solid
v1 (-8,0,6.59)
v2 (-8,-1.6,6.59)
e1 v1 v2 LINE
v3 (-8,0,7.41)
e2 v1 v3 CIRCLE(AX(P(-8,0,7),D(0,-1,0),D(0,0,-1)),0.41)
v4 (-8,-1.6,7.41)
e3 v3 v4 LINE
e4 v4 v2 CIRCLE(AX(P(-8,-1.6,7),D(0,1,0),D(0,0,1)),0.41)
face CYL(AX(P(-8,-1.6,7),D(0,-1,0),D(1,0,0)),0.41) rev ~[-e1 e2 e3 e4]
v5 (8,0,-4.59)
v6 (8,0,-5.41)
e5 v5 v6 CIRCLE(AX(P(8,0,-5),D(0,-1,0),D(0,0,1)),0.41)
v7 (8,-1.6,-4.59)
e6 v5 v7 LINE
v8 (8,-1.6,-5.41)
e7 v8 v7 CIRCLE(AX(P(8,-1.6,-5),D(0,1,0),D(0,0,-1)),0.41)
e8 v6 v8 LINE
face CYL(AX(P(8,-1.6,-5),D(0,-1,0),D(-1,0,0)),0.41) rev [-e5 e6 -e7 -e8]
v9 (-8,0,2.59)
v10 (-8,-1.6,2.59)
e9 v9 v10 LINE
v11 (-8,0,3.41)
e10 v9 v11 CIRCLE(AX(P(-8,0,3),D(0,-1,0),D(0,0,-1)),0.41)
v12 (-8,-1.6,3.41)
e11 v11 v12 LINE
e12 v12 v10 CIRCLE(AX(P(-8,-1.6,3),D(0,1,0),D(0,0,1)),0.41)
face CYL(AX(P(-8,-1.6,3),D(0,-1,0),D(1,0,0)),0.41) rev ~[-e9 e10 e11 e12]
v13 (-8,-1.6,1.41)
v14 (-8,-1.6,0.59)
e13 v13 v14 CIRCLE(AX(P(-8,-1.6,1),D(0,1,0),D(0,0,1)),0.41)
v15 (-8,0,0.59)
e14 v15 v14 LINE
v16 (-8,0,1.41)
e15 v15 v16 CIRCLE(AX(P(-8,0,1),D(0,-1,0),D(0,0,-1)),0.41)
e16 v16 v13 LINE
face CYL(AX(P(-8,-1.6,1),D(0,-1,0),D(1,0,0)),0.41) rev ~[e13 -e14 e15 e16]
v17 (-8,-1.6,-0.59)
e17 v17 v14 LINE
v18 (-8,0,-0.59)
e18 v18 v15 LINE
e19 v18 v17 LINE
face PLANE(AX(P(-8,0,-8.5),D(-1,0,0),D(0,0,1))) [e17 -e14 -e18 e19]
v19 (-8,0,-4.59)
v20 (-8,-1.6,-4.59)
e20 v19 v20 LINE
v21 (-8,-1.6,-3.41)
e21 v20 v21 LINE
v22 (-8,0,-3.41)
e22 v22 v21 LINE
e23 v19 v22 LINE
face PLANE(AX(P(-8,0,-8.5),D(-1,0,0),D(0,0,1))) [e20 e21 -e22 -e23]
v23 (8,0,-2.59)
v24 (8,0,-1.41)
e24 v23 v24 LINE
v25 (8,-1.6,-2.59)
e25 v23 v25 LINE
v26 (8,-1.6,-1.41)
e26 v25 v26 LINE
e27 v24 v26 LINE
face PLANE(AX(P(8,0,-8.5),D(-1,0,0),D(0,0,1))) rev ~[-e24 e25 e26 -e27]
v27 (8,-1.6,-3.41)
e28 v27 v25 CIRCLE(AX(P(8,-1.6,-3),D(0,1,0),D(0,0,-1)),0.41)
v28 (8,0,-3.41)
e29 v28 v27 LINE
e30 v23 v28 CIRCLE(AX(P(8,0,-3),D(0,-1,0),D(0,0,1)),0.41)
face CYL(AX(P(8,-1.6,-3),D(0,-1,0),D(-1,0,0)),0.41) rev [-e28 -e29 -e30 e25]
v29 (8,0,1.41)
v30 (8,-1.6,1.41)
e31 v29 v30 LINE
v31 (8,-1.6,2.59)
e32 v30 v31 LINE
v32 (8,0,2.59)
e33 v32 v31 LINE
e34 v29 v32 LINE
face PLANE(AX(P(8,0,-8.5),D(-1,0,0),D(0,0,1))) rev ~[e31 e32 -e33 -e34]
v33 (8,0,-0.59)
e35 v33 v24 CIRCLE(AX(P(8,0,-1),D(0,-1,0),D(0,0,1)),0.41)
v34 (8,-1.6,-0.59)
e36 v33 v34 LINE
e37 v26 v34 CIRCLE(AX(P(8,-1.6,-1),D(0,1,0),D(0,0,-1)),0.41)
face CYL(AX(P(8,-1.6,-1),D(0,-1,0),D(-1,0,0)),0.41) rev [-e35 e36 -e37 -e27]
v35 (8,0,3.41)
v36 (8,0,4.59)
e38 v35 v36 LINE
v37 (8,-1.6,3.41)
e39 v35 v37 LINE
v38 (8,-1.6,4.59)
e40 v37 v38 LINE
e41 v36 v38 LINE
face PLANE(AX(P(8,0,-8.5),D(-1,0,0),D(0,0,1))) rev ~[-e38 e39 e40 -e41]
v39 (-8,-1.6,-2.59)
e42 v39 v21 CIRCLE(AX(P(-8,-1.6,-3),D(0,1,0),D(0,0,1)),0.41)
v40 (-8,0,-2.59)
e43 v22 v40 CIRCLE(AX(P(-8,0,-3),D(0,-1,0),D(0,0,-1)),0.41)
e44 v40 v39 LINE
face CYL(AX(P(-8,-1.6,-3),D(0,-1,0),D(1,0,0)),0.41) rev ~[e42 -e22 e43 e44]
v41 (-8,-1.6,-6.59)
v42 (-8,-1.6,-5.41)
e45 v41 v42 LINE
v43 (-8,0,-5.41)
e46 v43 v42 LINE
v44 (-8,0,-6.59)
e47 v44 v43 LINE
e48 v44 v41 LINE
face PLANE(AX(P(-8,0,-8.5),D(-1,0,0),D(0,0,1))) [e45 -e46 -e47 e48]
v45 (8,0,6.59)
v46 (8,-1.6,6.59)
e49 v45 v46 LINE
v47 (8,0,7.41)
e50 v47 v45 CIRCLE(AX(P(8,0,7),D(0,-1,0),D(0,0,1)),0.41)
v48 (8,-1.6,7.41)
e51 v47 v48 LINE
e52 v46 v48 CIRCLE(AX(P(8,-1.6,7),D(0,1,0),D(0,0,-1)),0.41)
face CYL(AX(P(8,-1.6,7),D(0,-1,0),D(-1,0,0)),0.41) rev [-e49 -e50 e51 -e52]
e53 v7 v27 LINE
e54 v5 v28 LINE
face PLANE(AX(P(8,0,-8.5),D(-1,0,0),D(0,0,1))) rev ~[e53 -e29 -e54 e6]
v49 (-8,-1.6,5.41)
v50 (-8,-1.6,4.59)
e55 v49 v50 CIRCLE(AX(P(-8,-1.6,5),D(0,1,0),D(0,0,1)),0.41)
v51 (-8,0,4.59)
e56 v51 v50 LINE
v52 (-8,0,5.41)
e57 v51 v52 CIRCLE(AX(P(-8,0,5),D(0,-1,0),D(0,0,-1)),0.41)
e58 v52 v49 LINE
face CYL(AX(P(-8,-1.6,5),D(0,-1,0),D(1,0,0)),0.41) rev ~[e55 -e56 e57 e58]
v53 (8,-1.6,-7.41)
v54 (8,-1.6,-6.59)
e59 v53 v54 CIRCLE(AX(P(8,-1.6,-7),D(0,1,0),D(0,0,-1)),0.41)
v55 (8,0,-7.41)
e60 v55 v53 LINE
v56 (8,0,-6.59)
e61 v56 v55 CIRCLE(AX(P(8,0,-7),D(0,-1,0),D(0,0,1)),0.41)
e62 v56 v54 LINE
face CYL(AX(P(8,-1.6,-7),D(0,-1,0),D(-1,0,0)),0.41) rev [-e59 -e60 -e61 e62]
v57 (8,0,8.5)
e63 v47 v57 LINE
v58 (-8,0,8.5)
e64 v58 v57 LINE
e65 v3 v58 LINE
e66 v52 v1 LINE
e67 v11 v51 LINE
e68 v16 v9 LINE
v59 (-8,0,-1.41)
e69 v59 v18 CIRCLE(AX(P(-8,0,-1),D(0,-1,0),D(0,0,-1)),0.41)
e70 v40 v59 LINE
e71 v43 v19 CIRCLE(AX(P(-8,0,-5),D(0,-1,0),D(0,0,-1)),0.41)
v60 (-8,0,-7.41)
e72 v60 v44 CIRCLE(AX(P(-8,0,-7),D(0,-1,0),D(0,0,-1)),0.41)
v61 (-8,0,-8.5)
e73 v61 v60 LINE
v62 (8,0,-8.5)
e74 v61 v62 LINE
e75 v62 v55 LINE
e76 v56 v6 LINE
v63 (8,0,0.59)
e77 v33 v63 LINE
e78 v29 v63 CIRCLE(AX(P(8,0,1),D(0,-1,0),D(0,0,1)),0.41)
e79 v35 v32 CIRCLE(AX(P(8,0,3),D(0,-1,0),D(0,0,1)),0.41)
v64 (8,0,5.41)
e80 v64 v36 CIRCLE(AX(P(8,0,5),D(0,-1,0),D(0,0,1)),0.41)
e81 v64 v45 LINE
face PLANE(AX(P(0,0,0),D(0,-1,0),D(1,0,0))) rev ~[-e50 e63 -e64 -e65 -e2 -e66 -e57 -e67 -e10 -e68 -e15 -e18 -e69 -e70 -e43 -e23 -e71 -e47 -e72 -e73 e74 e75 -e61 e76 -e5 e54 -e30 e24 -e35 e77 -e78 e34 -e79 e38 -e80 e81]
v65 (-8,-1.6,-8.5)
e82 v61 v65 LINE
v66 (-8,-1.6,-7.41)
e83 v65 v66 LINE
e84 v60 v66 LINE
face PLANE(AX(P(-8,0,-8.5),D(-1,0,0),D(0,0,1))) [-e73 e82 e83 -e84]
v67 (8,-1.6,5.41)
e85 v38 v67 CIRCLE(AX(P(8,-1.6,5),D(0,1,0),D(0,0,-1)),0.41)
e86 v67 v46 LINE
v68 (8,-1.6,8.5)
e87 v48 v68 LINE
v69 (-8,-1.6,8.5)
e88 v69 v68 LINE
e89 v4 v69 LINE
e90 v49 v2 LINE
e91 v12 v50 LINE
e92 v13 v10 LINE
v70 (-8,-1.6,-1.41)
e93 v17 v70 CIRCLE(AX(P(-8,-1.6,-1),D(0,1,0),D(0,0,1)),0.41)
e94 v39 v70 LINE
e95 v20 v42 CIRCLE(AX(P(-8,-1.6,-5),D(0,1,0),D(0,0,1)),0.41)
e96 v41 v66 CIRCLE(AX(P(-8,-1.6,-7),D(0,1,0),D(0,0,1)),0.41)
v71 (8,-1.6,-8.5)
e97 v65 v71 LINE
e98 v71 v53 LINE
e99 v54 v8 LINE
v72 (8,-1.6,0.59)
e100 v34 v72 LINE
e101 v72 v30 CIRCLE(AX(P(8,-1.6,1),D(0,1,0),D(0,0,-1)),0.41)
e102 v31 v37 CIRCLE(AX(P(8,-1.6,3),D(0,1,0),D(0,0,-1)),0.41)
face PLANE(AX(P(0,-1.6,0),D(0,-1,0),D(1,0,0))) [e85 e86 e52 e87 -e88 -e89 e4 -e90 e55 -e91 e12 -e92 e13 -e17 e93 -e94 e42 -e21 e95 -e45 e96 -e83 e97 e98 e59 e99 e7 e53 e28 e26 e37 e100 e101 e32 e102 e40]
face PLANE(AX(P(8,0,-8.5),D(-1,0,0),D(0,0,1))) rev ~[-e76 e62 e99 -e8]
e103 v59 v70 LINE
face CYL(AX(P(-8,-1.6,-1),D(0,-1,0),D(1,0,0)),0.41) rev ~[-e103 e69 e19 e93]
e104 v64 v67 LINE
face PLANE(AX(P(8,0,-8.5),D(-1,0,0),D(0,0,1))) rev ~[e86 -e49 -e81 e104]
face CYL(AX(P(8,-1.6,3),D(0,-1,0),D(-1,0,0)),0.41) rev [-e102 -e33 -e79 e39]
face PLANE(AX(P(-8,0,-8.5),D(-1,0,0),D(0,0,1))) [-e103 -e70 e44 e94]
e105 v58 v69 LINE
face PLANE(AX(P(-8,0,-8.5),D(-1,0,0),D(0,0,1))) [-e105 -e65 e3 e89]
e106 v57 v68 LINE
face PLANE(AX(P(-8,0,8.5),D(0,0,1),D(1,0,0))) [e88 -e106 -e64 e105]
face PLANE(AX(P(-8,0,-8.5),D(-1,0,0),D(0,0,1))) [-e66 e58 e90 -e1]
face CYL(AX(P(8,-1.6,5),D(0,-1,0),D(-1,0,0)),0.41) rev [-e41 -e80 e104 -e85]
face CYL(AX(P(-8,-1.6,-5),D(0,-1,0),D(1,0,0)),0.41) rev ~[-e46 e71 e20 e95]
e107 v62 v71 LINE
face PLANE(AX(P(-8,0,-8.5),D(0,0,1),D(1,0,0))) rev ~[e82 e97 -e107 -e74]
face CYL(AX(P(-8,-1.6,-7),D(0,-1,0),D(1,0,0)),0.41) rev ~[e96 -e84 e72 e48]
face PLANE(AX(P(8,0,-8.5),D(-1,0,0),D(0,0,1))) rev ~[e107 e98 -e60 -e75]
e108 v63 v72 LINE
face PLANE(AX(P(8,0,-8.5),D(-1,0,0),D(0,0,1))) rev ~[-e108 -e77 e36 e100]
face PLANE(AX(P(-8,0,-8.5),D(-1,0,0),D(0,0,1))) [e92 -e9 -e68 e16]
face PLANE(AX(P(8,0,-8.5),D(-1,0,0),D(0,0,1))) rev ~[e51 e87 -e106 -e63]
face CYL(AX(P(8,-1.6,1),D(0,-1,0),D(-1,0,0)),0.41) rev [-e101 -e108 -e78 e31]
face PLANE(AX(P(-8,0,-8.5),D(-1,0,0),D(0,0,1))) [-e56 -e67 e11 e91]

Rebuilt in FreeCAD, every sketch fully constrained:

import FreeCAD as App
import Part
import Sketcher

V = App.Vector
Q = App.Units.Quantity


def add_polygon(sketch, points):
    """Adds a closed chain of lines whose ends are joined by coincident constraints."""
    first, n = sketch.GeometryCount, len(points)
    for a, b in zip(points, points[1:] + points[:1]):
        sketch.addGeometry(Part.LineSegment(App.Vector(*a, 0), App.Vector(*b, 0)), False)
    for i in range(n):
        sketch.addConstraint(Sketcher.Constraint("Coincident", first + i, 2, first + (i + 1) % n, 1))

doc = App.newDocument("Part")
params = doc.addObject("Spreadsheet::Sheet", "Params")
for row, (alias, value) in enumerate([
    ("sketch1_width", "16 mm"),
    ("sketch1_height", "17 mm"),
    ("pad1_length", "1.6 mm"),
    ("sketch2_diameter", "0.82 mm"),
    ("sketch3_diameter", "0.82 mm"),
    ("sketch4_diameter", "0.82 mm"),
    ("sketch5_diameter", "0.82 mm"),
    ("sketch6_diameter", "0.82 mm"),
    ("sketch7_diameter", "0.82 mm"),
    ("sketch8_diameter", "0.82 mm"),
    ("sketch9_diameter", "0.82 mm"),
], start=1):
    params.set(f"A{row}", alias)
    params.set(f"B{row}", "=" + value)
    params.setAlias(f"B{row}", alias)

body = doc.addObject("PartDesign::Body", "Body")

# Sketch on XZ plane
sketch1 = doc.addObject("Sketcher::SketchObject", "Sketch")
body.addObject(sketch1)
sketch1.AttachmentSupport = (doc.XZ_Plane, [""])
sketch1.MapMode = "FlatFace"
add_polygon(sketch1, [(-8, 8), (-8, -8), (8, -8), (8, 8)])  # lines 0-3
sketch1.addConstraint([
    Sketcher.Constraint("Vertical", 0),
    Sketcher.Constraint("Horizontal", 1),
    Sketcher.Constraint("Vertical", 2),
    Sketcher.Constraint("Horizontal", 3),
    Sketcher.Constraint("Symmetric", 0, 2, 2, 2, -1, 1),
    Sketcher.Constraint("DistanceX", 1, 1, 1, 2, Q("16 mm")),
    Sketcher.Constraint("DistanceY", 0, 2, 0, 1, Q("17 mm")),
])
sketch1.setExpression("Constraints[9]", "Params.sketch1_width")
sketch1.setExpression("Constraints[10]", "Params.sketch1_height")
pad1 = doc.addObject("PartDesign::Pad", "Pad")
body.addObject(pad1)
pad1.Profile = sketch1
pad1.setExpression("Length", "Params.pad1_length")

# Sketch on XZ plane
sketch2 = doc.addObject("Sketcher::SketchObject", "Sketch001")
body.addObject(sketch2)
sketch2.AttachmentSupport = (doc.XZ_Plane, [""])
sketch2.MapMode = "FlatFace"
sketch2.AttachmentOffset = App.Placement(V(0, 0, 1.6), App.Rotation())
sketch2.addGeometry(Part.Circle(V(-8, 7, 0), V(0, 0, 1), 0.41), False)
sketch2.addConstraint([
    Sketcher.Constraint("Diameter", 0, Q("0.82 mm")),
    Sketcher.Constraint("DistanceX", 0, 3, -1, 1, Q("8 mm")),
    Sketcher.Constraint("DistanceY", -1, 1, 0, 3, Q("7 mm")),
])
sketch2.setExpression("Constraints[0]", "Params.sketch2_diameter")
pocket1 = doc.addObject("PartDesign::Pocket", "Pocket")
body.addObject(pocket1)
pocket1.Profile = sketch2
pocket1.Type = "ThroughAll"
pocket1.Midplane = True

# Sketch on XZ plane
sketch3 = doc.addObject("Sketcher::SketchObject", "Sketch002")
body.addObject(sketch3)
sketch3.AttachmentSupport = (doc.XZ_Plane, [""])
sketch3.MapMode = "FlatFace"
sketch3.AttachmentOffset = App.Placement(V(0, 0, 1.6), App.Rotation())
sketch3.addGeometry(Part.Circle(V(-8, 5, 0), V(0, 0, 1), 0.41), False)
sketch3.addConstraint([
    Sketcher.Constraint("Diameter", 0, Q("0.82 mm")),
    Sketcher.Constraint("DistanceX", 0, 3, -1, 1, Q("8 mm")),
    Sketcher.Constraint("DistanceY", -1, 1, 0, 3, Q("5 mm")),
])
sketch3.setExpression("Constraints[0]", "Params.sketch3_diameter")
pocket2 = doc.addObject("PartDesign::Pocket", "Pocket001")
body.addObject(pocket2)
pocket2.Profile = sketch3
pocket2.Type = "ThroughAll"
pocket2.Midplane = True

# Sketch on XZ plane
sketch4 = doc.addObject("Sketcher::SketchObject", "Sketch003")
body.addObject(sketch4)
sketch4.AttachmentSupport = (doc.XZ_Plane, [""])
sketch4.MapMode = "FlatFace"
sketch4.AttachmentOffset = App.Placement(V(0, 0, 1.6), App.Rotation())
sketch4.addGeometry(Part.Circle(V(-8, 3, 0), V(0, 0, 1), 0.41), False)
sketch4.addConstraint([
    Sketcher.Constraint("Diameter", 0, Q("0.82 mm")),
    Sketcher.Constraint("DistanceX", 0, 3, -1, 1, Q("8 mm")),
    Sketcher.Constraint("DistanceY", -1, 1, 0, 3, Q("3 mm")),
])
sketch4.setExpression("Constraints[0]", "Params.sketch4_diameter")
pocket3 = doc.addObject("PartDesign::Pocket", "Pocket002")
body.addObject(pocket3)
pocket3.Profile = sketch4
pocket3.Type = "ThroughAll"
pocket3.Midplane = True

# Sketch on XZ plane
sketch5 = doc.addObject("Sketcher::SketchObject", "Sketch004")
body.addObject(sketch5)
sketch5.AttachmentSupport = (doc.XZ_Plane, [""])
sketch5.MapMode = "FlatFace"
sketch5.AttachmentOffset = App.Placement(V(0, 0, 1.6), App.Rotation())
sketch5.addGeometry(Part.Circle(V(-8, 1, 0), V(0, 0, 1), 0.41), False)
sketch5.addConstraint([
    Sketcher.Constraint("Diameter", 0, Q("0.82 mm")),
    Sketcher.Constraint("DistanceX", 0, 3, -1, 1, Q("8 mm")),
    Sketcher.Constraint("DistanceY", -1, 1, 0, 3, Q("1 mm")),
])
sketch5.setExpression("Constraints[0]", "Params.sketch5_diameter")
pocket4 = doc.addObject("PartDesign::Pocket", "Pocket003")
body.addObject(pocket4)
pocket4.Profile = sketch5
pocket4.Type = "ThroughAll"
pocket4.Midplane = True

# Sketch on XZ plane
sketch6 = doc.addObject("Sketcher::SketchObject", "Sketch005")
body.addObject(sketch6)
sketch6.AttachmentSupport = (doc.XZ_Plane, [""])
sketch6.MapMode = "FlatFace"
sketch6.AttachmentOffset = App.Placement(V(0, 0, 1.6), App.Rotation())
sketch6.addGeometry(Part.Circle(V(-8, -1, 0), V(0, 0, 1), 0.41), False)
sketch6.addConstraint([
    Sketcher.Constraint("Diameter", 0, Q("0.82 mm")),
    Sketcher.Constraint("DistanceX", 0, 3, -1, 1, Q("8 mm")),
    Sketcher.Constraint("DistanceY", 0, 3, -1, 1, Q("1 mm")),
])
sketch6.setExpression("Constraints[0]", "Params.sketch6_diameter")
pocket5 = doc.addObject("PartDesign::Pocket", "Pocket004")
body.addObject(pocket5)
pocket5.Profile = sketch6
pocket5.Type = "ThroughAll"
pocket5.Midplane = True

# Sketch on XZ plane
sketch7 = doc.addObject("Sketcher::SketchObject", "Sketch006")
body.addObject(sketch7)
sketch7.AttachmentSupport = (doc.XZ_Plane, [""])
sketch7.MapMode = "FlatFace"
sketch7.AttachmentOffset = App.Placement(V(0, 0, 1.6), App.Rotation())
sketch7.addGeometry(Part.Circle(V(-8, -3, 0), V(0, 0, 1), 0.41), False)
sketch7.addConstraint([
    Sketcher.Constraint("Diameter", 0, Q("0.82 mm")),
    Sketcher.Constraint("DistanceX", 0, 3, -1, 1, Q("8 mm")),
    Sketcher.Constraint("DistanceY", 0, 3, -1, 1, Q("3 mm")),
])
sketch7.setExpression("Constraints[0]", "Params.sketch7_diameter")
pocket6 = doc.addObject("PartDesign::Pocket", "Pocket005")
body.addObject(pocket6)
pocket6.Profile = sketch7
pocket6.Type = "ThroughAll"
pocket6.Midplane = True

# Sketch on XZ plane
sketch8 = doc.addObject("Sketcher::SketchObject", "Sketch007")
body.addObject(sketch8)
sketch8.AttachmentSupport = (doc.XZ_Plane, [""])
sketch8.MapMode = "FlatFace"
sketch8.AttachmentOffset = App.Placement(V(0, 0, 1.6), App.Rotation())
sketch8.addGeometry(Part.Circle(V(-8, -5, 0), V(0, 0, 1), 0.41), False)
sketch8.addConstraint([
    Sketcher.Constraint("Diameter", 0, Q("0.82 mm")),
    Sketcher.Constraint("DistanceX", 0, 3, -1, 1, Q("8 mm")),
    Sketcher.Constraint("DistanceY", 0, 3, -1, 1, Q("5 mm")),
])
sketch8.setExpression("Constraints[0]", "Params.sketch8_diameter")
pocket7 = doc.addObject("PartDesign::Pocket", "Pocket006")
body.addObject(pocket7)
pocket7.Profile = sketch8
pocket7.Type = "ThroughAll"
pocket7.Midplane = True

# Sketch on XZ plane
sketch9 = doc.addObject("Sketcher::SketchObject", "Sketch008")
body.addObject(sketch9)
sketch9.AttachmentSupport = (doc.XZ_Plane, [""])
sketch9.MapMode = "FlatFace"
sketch9.AttachmentOffset = App.Placement(V(0, 0, 1.6), App.Rotation())
sketch9.addGeometry(Part.Circle(V(-8, -7, 0), V(0, 0, 1), 0.41), False)
sketch9.addConstraint([
    Sketcher.Constraint("Diameter", 0, Q("0.82 mm")),
    Sketcher.Constraint("DistanceX", 0, 3, -1, 1, Q("8 mm")),
    Sketcher.Constraint("DistanceY", 0, 3, -1, 1, Q("7 mm")),
])
sketch9.setExpression("Constraints[0]", "Params.sketch9_diameter")
pocket8 = doc.addObject("PartDesign::Pocket", "Pocket007")
body.addObject(pocket8)
pocket8.Profile = sketch9
pocket8.Type = "ThroughAll"
pocket8.Midplane = True
doc.recompute()

mirrored = doc.addObject("PartDesign::Mirrored", "Mirrored")
body.addObject(mirrored)
mirrored.Originals = [pocket1, pocket2, pocket3, pocket4, pocket5, pocket6, pocket7, pocket8]
mirrored.MirrorPlane = (doc.YZ_Plane, [""])
body.Tip = mirrored

doc.recompute()
